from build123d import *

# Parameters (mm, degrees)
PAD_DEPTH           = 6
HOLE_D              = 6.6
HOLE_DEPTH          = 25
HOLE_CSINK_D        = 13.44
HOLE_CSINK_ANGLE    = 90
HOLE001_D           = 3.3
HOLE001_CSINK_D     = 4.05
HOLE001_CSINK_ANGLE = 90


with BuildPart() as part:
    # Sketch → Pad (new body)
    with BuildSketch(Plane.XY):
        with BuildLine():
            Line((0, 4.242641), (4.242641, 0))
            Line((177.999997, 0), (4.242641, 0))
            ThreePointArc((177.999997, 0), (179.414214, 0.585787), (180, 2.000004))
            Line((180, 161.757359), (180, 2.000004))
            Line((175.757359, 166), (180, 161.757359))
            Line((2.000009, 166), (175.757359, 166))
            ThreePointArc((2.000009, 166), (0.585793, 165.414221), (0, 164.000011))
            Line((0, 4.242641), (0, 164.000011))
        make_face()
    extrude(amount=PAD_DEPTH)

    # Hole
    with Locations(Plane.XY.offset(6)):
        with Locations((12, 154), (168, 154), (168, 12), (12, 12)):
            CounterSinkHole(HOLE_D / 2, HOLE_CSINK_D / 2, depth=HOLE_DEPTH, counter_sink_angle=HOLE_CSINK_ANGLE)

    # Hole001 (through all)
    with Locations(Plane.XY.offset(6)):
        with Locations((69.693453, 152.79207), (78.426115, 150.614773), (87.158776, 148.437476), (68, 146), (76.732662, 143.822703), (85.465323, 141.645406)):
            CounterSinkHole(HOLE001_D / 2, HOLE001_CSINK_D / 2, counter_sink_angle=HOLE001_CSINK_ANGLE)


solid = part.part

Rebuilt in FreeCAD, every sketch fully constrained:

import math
import FreeCAD as App
import Part
import Sketcher

V = App.Vector
Q = App.Units.Quantity

doc = App.newDocument("Part")
body = doc.addObject("PartDesign::Body", "Body")

# Sketch on XY plane
sketch1 = body.newObject("Sketcher::SketchObject", "Sketch")
sketch1.AttachmentSupport = (doc.getObject("XY_Plane"), [""])
sketch1.MapMode = "FlatFace"
sketch1.addGeometry(Part.LineSegment(V(0, 4.2, 0), V(4.2, 0, 0)), False)
sketch1.addGeometry(Part.LineSegment(V(4.2, 0, 0), V(178, 0, 0)), False)
sketch1.addGeometry(Part.ArcOfCircle(Part.Circle(V(178, 2, 0), V(0, 0, 1), 2), math.radians(-90), math.radians(0)), False)
sketch1.addGeometry(Part.LineSegment(V(180, 2, 0), V(180, 161.8, 0)), False)
sketch1.addGeometry(Part.LineSegment(V(180, 161.8, 0), V(175.8, 166, 0)), False)
sketch1.addGeometry(Part.LineSegment(V(175.8, 166, 0), V(2, 166, 0)), False)
sketch1.addGeometry(Part.ArcOfCircle(Part.Circle(V(2, 164, 0), V(0, 0, 1), 2), math.radians(90), math.radians(180)), False)
sketch1.addGeometry(Part.LineSegment(V(0, 164, 0), V(0, 4.2, 0)), False)
sketch1.addConstraint(Sketcher.Constraint("Coincident", 0, 2, 1, 1))
sketch1.addConstraint(Sketcher.Constraint("Tangent", 1, 2, 2, 1))
sketch1.addConstraint(Sketcher.Constraint("Tangent", 2, 2, 3, 1))
sketch1.addConstraint(Sketcher.Constraint("Coincident", 3, 2, 4, 1))
sketch1.addConstraint(Sketcher.Constraint("Coincident", 4, 2, 5, 1))
sketch1.addConstraint(Sketcher.Constraint("Coincident", 5, 2, 6, 1))
sketch1.addConstraint(Sketcher.Constraint("Coincident", 6, 2, 7, 1))
sketch1.addConstraint(Sketcher.Constraint("Coincident", 7, 2, 0, 1))
sketch1.addConstraint(Sketcher.Constraint("Horizontal", 1))
sketch1.addConstraint(Sketcher.Constraint("Vertical", 3))
sketch1.addConstraint(Sketcher.Constraint("Horizontal", 5))
sketch1.addConstraint(Sketcher.Constraint("Vertical", 7))
sketch1.addConstraint(Sketcher.Constraint("Equal", 2, 6))
sketch1.addConstraint(Sketcher.Constraint("PointOnObject", 0, 2, -1))
sketch1.addConstraint(Sketcher.Constraint("PointOnObject", 6, 2, -2))
sketch1.addConstraint(Sketcher.Constraint("Parallel", 0, 4))
sketch1.addConstraint(Sketcher.Constraint("Equal", 0, 4))
sketch1.addConstraint(Sketcher.Constraint("Radius", 2, 2.0))
sketch1.addConstraint(Sketcher.Constraint("Angle", 0, Q("-45 deg")))
sketch1.addConstraint(Sketcher.Constraint("Distance", 0, 6.0))
sketch1.addConstraint(Sketcher.Constraint("DistanceX", -1, 1, 2, 3, 178.0))
sketch1.addConstraint(Sketcher.Constraint("DistanceY", -1, 1, 6, 3, 164.000001))
sketch1.addConstraint(Sketcher.Constraint("DistanceX", 5, 2, 5, 1, 173.75735))
sketch1.addConstraint(Sketcher.Constraint("DistanceY", 7, 2, 7, 1, 159.75737))
pad1 = body.newObject("PartDesign::Pad", "Pad")
pad1.Profile = sketch1
pad1.Length = 6

# Sketch on XY plane
sketch2 = body.newObject("Sketcher::SketchObject", "Sketch001")
sketch2.AttachmentSupport = (doc.getObject("XY_Plane"), [""])
sketch2.MapMode = "FlatFace"
sketch2.AttachmentOffset = App.Placement(V(0, 0, 6), App.Rotation())
sketch2.addGeometry(Part.Circle(V(12, 154, 0), V(0, 0, 1), 3.3), False)
sketch2.addGeometry(Part.Circle(V(168, 154, 0), V(0, 0, 1), 3.3), False)
sketch2.addGeometry(Part.Circle(V(168, 12, 0), V(0, 0, 1), 3.3), False)
sketch2.addGeometry(Part.Circle(V(12, 12, 0), V(0, 0, 1), 3.3), False)
sketch2.addConstraint(Sketcher.Constraint("Equal", 0, 1))
sketch2.addConstraint(Sketcher.Constraint("Equal", 1, 2))
sketch2.addConstraint(Sketcher.Constraint("Equal", 2, 3))
sketch2.addConstraint(Sketcher.Constraint("Horizontal", 0, 3, 1, 3))
sketch2.addConstraint(Sketcher.Constraint("Horizontal", 2, 3, 3, 3))
sketch2.addConstraint(Sketcher.Constraint("Vertical", 1, 3, 2, 3))
sketch2.addConstraint(Sketcher.Constraint("Vertical", 0, 3, 3, 3))
sketch2.addConstraint(Sketcher.Constraint("Diameter", 0, 6.6))
sketch2.addConstraint(Sketcher.Constraint("DistanceX", -1, 1, 0, 3, 12.0))
sketch2.addConstraint(Sketcher.Constraint("DistanceY", -1, 1, 0, 3, 154.0))
sketch2.addConstraint(Sketcher.Constraint("DistanceX", -1, 1, 1, 3, 168.0))
sketch2.addConstraint(Sketcher.Constraint("DistanceY", -1, 1, 2, 3, 12.0))
doc.recompute()
hole = body.newObject("PartDesign::Hole", "Hole")
hole.Profile = sketch2
hole.ThreadType = "None"
hole.Diameter = 6.6
hole.DepthType = "Dimension"
hole.Depth = 25
hole.DrillPoint = "Flat"
hole.HoleCutType = "Countersink"
hole.HoleCutDiameter = 13.44
hole.HoleCutCountersinkAngle = 90

# Sketch on XY plane
sketch3 = body.newObject("Sketcher::SketchObject", "Sketch002")
sketch3.AttachmentSupport = (doc.getObject("XY_Plane"), [""])
sketch3.MapMode = "FlatFace"
sketch3.AttachmentOffset = App.Placement(V(0, 0, 6), App.Rotation())
sketch3.addGeometry(Part.Circle(V(69.7, 152.8, 0), V(0, 0, 1), 1.6), False)
sketch3.addGeometry(Part.Circle(V(78.4, 150.6, 0), V(0, 0, 1), 1.6), False)
sketch3.addGeometry(Part.Circle(V(87.2, 148.4, 0), V(0, 0, 1), 1.6), False)
sketch3.addGeometry(Part.Circle(V(68, 146, 0), V(0, 0, 1), 1.6), False)
sketch3.addGeometry(Part.Circle(V(76.7, 143.8, 0), V(0, 0, 1), 1.6), False)
sketch3.addGeometry(Part.Circle(V(85.5, 141.6, 0), V(0, 0, 1), 1.6), False)
sketch3.addConstraint(Sketcher.Constraint("Equal", 0, 1))
sketch3.addConstraint(Sketcher.Constraint("Equal", 1, 2))
sketch3.addConstraint(Sketcher.Constraint("Equal", 2, 3))
sketch3.addConstraint(Sketcher.Constraint("Equal", 3, 4))
sketch3.addConstraint(Sketcher.Constraint("Equal", 4, 5))
sketch3.addConstraint(Sketcher.Constraint("Diameter", 0, 3.3))
sketch3.addConstraint(Sketcher.Constraint("DistanceX", -1, 1, 3, 3, 68.0))
sketch3.addConstraint(Sketcher.Constraint("DistanceY", -1, 1, 3, 3, 146.0))
sketch3.addConstraint(Sketcher.Constraint("DistanceY", -1, 1, 0, 3, 152.79207))
sketch3.addConstraint(Sketcher.Constraint("DistanceX", 0, 3, 1, 3, 8.732662))
sketch3.addConstraint(Sketcher.Constraint("DistanceX", 1, 3, 2, 3, 8.732661))
sketch3.addConstraint(Sketcher.Constraint("DistanceY", 4, 3, 1, 3, 6.79207))
sketch3.addConstraint(Sketcher.Constraint("DistanceX", 0, 3, 4, 3, 7.039209))
sketch3.addConstraint(Sketcher.Constraint("DistanceY", 5, 3, 2, 3, 6.79207))
sketch3.addConstraint(Sketcher.Constraint("DistanceX", 4, 3, 5, 3, 8.732661))
sketch3.addConstraint(Sketcher.Constraint("DistanceX", -1, 1, 0, 3, 69.693453))
sketch3.addConstraint(Sketcher.Constraint("DistanceY", -1, 1, 1, 3, 150.614773))
sketch3.addConstraint(Sketcher.Constraint("DistanceY", -1, 1, 2, 3, 148.437476))
doc.recompute()
hole2 = body.newObject("PartDesign::Hole", "Hole001")
hole2.Profile = sketch3
hole2.ThreadType = "None"
hole2.Diameter = 3.3
hole2.DepthType = "ThroughAll"
hole2.HoleCutType = "Countersink"
hole2.HoleCutDiameter = 4.05
hole2.HoleCutCountersinkAngle = 90

doc.recompute()
